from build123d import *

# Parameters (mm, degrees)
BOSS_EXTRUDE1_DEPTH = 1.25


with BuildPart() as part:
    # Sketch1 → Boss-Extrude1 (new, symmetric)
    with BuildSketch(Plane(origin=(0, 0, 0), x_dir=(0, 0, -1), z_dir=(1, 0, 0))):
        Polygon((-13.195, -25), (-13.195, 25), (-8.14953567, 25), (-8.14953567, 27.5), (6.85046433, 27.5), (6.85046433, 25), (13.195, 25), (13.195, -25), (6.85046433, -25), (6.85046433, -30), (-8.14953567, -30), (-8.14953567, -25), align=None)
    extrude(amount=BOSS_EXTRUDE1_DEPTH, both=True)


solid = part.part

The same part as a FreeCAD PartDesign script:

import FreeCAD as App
import Part
import Sketcher

V = App.Vector


def add_polygon(sketch, points):
    """Adds a closed chain of lines whose ends are joined by coincident constraints."""
    first, n = sketch.GeometryCount, len(points)
    for a, b in zip(points, points[1:] + points[:1]):
        sketch.addGeometry(Part.LineSegment(App.Vector(*a, 0), App.Vector(*b, 0)), False)
    for i in range(n):
        sketch.addConstraint(Sketcher.Constraint("Coincident", first + i, 2, first + (i + 1) % n, 1))

doc = App.newDocument("Part")
body = doc.addObject("PartDesign::Body", "Body")

sketch1 = doc.addObject("Sketcher::SketchObject", "Sketch")
body.addObject(sketch1)
sketch1.AttachmentSupport = (doc.YZ_Plane, [""])
sketch1.MapMode = "FlatFace"
add_polygon(sketch1, [(25, 13.2), (-25, 13.2), (-25, 8.1), (-30, 8.1), (-30, -6.9), (-25, -6.9), (-25, -13.2), (25, -13.2), (25, -6.9), (27.5, -6.9), (27.5, 8.1), (25, 8.1)])
sketch1.addConstraint(Sketcher.Constraint("Horizontal", 0))
sketch1.addConstraint(Sketcher.Constraint("Vertical", 1))
sketch1.addConstraint(Sketcher.Constraint("Horizontal", 2))
sketch1.addConstraint(Sketcher.Constraint("Vertical", 3))
sketch1.addConstraint(Sketcher.Constraint("Horizontal", 4))
sketch1.addConstraint(Sketcher.Constraint("Vertical", 5))
sketch1.addConstraint(Sketcher.Constraint("Horizontal", 6))
sketch1.addConstraint(Sketcher.Constraint("Vertical", 7))
sketch1.addConstraint(Sketcher.Constraint("Horizontal", 8))
sketch1.addConstraint(Sketcher.Constraint("Vertical", 9))
sketch1.addConstraint(Sketcher.Constraint("Horizontal", 10))
sketch1.addConstraint(Sketcher.Constraint("Vertical", 11))
sketch1.addConstraint(Sketcher.Constraint("Symmetric", 0, 2, 6, 2, -1, 1))
sketch1.addConstraint(Sketcher.Constraint("Symmetric", 4, 2, 7, 2, -2))
sketch1.addConstraint(Sketcher.Constraint("Symmetric", 1, 2, 10, 2, -2))
sketch1.addConstraint(Sketcher.Constraint("DistanceX", 0, 2, 0, 1, 50.0))
sketch1.addConstraint(Sketcher.Constraint("DistanceX", 2, 2, 2, 1, 5.0))
sketch1.addConstraint(Sketcher.Constraint("DistanceY", 3, 2, 3, 1, 15.0))
sketch1.addConstraint(Sketcher.Constraint("DistanceX", 8, 1, 8, 2, 2.5))
sketch1.addConstraint(Sketcher.Constraint("DistanceY", 5, 2, 0, 2, 26.39))
sketch1.addConstraint(Sketcher.Constraint("DistanceY", 1, 2, 1, 1, 5.045464))
pad1 = doc.addObject("PartDesign::Pad", "Pad")
body.addObject(pad1)
pad1.Profile = sketch1
pad1.Length = 2.5
pad1.Midplane = True

doc.recompute()
